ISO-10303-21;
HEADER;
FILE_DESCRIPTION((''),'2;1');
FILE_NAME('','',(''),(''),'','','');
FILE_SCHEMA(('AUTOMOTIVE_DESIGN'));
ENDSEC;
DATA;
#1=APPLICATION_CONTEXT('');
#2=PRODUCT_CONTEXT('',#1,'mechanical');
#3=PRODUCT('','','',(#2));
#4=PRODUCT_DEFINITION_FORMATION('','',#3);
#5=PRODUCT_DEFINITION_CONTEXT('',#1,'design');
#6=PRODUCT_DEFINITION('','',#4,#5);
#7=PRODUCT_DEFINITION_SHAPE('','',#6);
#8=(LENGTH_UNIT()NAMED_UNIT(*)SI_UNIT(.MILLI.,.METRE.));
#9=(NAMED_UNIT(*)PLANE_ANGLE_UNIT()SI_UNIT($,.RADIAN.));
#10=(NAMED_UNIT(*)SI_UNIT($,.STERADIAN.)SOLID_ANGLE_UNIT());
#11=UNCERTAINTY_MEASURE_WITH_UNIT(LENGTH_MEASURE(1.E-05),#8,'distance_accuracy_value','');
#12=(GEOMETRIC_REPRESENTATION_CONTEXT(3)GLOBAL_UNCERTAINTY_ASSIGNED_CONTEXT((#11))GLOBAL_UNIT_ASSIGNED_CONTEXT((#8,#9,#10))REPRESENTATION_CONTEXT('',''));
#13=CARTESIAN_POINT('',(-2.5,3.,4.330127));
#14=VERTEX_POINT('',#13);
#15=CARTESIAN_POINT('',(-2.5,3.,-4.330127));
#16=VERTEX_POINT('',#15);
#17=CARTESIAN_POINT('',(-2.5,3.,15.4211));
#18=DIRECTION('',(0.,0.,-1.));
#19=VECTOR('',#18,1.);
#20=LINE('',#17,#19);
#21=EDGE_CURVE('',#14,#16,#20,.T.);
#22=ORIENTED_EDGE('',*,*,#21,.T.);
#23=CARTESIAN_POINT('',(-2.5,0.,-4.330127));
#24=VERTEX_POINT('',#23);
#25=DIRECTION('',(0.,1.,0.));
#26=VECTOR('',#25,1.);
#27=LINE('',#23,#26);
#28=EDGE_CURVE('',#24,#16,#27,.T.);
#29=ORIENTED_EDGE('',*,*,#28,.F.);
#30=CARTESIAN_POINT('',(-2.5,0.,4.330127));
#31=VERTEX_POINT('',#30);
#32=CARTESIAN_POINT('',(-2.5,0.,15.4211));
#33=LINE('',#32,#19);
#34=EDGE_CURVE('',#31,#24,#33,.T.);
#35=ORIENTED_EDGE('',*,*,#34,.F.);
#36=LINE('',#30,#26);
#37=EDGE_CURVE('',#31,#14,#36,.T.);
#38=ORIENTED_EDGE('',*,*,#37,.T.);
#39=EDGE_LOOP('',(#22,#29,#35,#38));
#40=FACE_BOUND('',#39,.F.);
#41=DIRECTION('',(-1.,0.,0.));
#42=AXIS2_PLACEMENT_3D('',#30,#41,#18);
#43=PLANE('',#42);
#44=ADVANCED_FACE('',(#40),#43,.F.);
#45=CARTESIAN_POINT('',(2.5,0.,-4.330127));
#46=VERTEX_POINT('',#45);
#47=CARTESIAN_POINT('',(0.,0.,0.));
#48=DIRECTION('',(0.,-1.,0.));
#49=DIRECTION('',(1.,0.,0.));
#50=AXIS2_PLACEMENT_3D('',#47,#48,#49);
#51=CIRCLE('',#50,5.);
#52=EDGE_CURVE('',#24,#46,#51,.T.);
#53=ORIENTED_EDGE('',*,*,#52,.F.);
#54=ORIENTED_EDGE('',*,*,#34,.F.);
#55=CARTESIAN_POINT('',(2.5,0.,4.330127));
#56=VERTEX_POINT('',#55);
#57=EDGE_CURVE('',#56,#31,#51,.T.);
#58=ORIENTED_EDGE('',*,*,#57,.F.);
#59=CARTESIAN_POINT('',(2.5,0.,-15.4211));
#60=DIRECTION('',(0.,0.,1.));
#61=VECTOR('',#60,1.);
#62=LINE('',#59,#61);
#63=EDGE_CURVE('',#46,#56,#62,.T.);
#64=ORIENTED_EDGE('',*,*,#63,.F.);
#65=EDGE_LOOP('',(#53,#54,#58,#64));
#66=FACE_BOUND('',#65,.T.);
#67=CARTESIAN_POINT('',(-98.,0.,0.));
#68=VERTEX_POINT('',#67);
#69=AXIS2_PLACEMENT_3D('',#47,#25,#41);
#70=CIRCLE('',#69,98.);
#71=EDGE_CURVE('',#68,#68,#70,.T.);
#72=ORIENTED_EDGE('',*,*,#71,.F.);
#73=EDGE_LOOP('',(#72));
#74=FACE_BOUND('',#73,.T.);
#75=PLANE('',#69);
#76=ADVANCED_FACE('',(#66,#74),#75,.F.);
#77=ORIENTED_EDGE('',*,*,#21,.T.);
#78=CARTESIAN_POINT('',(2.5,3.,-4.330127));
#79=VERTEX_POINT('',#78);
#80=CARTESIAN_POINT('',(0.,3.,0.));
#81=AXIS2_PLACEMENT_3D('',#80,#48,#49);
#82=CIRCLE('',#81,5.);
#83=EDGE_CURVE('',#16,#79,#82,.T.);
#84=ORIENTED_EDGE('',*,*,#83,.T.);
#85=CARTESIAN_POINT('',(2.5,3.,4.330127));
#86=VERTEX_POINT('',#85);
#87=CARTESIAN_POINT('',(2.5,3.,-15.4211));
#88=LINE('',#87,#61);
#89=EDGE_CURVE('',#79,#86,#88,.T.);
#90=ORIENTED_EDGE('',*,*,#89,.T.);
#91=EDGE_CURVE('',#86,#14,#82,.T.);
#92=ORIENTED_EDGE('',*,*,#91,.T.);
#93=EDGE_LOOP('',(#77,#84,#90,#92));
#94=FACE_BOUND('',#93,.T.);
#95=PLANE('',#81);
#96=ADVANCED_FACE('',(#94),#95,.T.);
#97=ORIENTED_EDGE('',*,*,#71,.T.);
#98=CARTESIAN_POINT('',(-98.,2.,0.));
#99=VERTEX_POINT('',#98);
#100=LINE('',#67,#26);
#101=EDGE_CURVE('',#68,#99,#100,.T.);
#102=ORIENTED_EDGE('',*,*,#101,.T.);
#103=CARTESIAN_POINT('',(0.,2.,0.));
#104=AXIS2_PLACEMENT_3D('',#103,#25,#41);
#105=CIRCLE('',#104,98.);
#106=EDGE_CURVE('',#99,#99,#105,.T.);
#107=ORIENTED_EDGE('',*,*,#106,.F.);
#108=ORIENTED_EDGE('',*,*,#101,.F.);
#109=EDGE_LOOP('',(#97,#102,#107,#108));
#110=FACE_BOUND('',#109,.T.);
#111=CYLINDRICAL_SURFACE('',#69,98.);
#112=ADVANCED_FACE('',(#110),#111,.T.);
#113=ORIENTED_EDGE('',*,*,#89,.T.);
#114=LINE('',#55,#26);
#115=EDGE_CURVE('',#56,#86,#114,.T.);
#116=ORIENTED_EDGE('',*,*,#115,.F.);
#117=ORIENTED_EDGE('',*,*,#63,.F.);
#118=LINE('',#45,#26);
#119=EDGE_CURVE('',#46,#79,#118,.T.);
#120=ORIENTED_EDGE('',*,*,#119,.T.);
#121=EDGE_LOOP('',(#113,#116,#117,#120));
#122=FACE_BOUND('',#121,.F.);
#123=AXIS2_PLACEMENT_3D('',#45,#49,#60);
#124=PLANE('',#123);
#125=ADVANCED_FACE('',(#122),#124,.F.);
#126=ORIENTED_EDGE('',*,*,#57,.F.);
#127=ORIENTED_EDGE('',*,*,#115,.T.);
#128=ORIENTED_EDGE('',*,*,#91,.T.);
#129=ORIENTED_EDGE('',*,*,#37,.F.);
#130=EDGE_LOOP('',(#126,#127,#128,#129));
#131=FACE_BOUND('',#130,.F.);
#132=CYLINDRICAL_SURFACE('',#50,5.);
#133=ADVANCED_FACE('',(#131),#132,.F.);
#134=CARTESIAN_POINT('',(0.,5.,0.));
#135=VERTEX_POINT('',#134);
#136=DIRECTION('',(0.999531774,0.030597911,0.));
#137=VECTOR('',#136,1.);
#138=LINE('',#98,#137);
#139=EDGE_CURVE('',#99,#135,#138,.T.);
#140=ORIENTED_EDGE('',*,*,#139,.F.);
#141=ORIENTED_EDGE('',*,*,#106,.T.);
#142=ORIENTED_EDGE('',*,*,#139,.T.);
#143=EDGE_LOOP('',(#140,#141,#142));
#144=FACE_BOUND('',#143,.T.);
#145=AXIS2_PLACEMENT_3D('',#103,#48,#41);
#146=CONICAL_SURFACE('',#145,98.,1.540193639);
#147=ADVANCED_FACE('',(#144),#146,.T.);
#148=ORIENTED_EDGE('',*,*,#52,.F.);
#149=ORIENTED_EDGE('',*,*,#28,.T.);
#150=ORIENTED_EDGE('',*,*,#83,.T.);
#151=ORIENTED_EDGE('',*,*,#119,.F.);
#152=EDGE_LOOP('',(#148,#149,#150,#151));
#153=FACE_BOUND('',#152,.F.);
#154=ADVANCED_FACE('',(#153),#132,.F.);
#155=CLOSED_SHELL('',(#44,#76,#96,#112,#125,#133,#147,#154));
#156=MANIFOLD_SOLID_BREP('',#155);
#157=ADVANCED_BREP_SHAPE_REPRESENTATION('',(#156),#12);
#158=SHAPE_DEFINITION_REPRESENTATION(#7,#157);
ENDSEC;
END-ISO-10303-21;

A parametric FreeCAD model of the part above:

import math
import FreeCAD as App
import Part
import Sketcher
from FreeCAD import Vector
Q = App.Units.Quantity


def add_polygon(sketch, points):
    """Adds a closed chain of lines whose ends are joined by coincident constraints."""
    first, n = sketch.GeometryCount, len(points)
    for a, b in zip(points, points[1:] + points[:1]):
        sketch.addGeometry(Part.LineSegment(App.Vector(*a, 0), App.Vector(*b, 0)), False)
    for i in range(n):
        sketch.addConstraint(Sketcher.Constraint("Coincident", first + i, 2, first + (i + 1) % n, 1))

doc = App.newDocument("Part")
body = doc.addObject("PartDesign::Body", "Body")

sketch1 = body.newObject("Sketcher::SketchObject", "Sketch")
sketch1.AttachmentSupport = (doc.getObject("XY_Plane"), [""])
sketch1.MapMode = "FlatFace"
add_polygon(sketch1, [(-98, 2), (-98, 0), (0, 0), (0, 5)])
sketch1.addConstraint(Sketcher.Constraint("Vertical", 0))
sketch1.addConstraint(Sketcher.Constraint("Horizontal", 1))
sketch1.addConstraint(Sketcher.Constraint("Vertical", 2))
sketch1.addConstraint(Sketcher.Constraint("Coincident", 1, 2, -1, 1))
sketch1.addConstraint(Sketcher.Constraint("DistanceY", 0, 2, 0, 1, Q("2 mm")))
sketch1.addConstraint(Sketcher.Constraint("DistanceX", 1, 1, 1, 2, Q("98 mm")))
sketch1.addConstraint(Sketcher.Constraint("DistanceY", 2, 1, 2, 2, Q("5 mm")))
revolution = body.newObject("PartDesign::Revolution", "Revolution")
revolution.Profile = sketch1
revolution.ReferenceAxis = (sketch1, ["V_Axis"])
revolution.Angle = 360

sketch2 = body.newObject("Sketcher::SketchObject", "Sketch001")
sketch2.AttachmentSupport = (doc.getObject("XZ_Plane"), [""])
sketch2.MapMode = "FlatFace"
sketch2.addGeometry(Part.LineSegment(Vector(2, -4, 0), Vector(2, 4, 0)), False)
sketch2.addGeometry(Part.ArcOfCircle(Part.Circle(Vector(0, 0, 0), Vector(0, 0, 1), 5), math.radians(60), math.radians(120)), False)
sketch2.addGeometry(Part.LineSegment(Vector(-2, 4, 0), Vector(-2, -4, 0)), False)
sketch2.addGeometry(Part.ArcOfCircle(Part.Circle(Vector(0, 0, 0), Vector(0, 0, 1), 5), math.radians(-120), math.radians(-60)), False)
sketch2.addConstraint(Sketcher.Constraint("Coincident", 0, 2, 1, 1))
sketch2.addConstraint(Sketcher.Constraint("Coincident", 1, 2, 2, 1))
sketch2.addConstraint(Sketcher.Constraint("Coincident", 2, 2, 3, 1))
sketch2.addConstraint(Sketcher.Constraint("Coincident", 3, 2, 0, 1))
sketch2.addConstraint(Sketcher.Constraint("Vertical", 0))
sketch2.addConstraint(Sketcher.Constraint("Vertical", 2))
sketch2.addConstraint(Sketcher.Constraint("Coincident", 1, 3, -1, 1))
sketch2.addConstraint(Sketcher.Constraint("Coincident", 3, 3, -1, 1))
sketch2.addConstraint(Sketcher.Constraint("Equal", 1, 3))
sketch2.addConstraint(Sketcher.Constraint("Horizontal", 0, 2, 1, 2))
sketch2.addConstraint(Sketcher.Constraint("Radius", 1, Q("5 mm")))
sketch2.addConstraint(Sketcher.Constraint("DistanceX", 1, 2, 0, 2, Q("5 mm")))
pocket1 = body.newObject("PartDesign::Pocket", "Pocket")
pocket1.Profile = sketch2
pocket1.Length = 3

doc.recompute()
